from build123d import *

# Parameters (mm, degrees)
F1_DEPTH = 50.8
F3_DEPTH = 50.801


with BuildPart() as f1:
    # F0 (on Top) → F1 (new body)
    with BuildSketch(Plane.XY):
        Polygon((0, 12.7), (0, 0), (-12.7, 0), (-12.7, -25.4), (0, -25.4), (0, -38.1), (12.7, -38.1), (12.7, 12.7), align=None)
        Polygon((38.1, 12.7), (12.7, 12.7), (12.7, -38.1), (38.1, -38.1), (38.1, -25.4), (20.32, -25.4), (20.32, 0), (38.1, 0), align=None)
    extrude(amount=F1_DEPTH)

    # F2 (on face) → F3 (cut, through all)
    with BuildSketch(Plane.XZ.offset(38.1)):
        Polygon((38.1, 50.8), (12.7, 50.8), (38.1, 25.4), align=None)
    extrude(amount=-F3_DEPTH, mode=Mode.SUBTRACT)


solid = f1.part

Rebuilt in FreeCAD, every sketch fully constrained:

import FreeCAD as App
import Part
import Sketcher
Q = App.Units.Quantity


def add_polygon(sketch, points):
    """Adds a closed chain of lines whose ends are joined by coincident constraints."""
    first, n = sketch.GeometryCount, len(points)
    for a, b in zip(points, points[1:] + points[:1]):
        sketch.addGeometry(Part.LineSegment(App.Vector(*a, 0), App.Vector(*b, 0)), False)
    for i in range(n):
        sketch.addConstraint(Sketcher.Constraint("Coincident", first + i, 2, first + (i + 1) % n, 1))

doc = App.newDocument("Part")
body = doc.addObject("PartDesign::Body", "Body")

# Sketch on XY plane
sketch1 = doc.addObject("Sketcher::SketchObject", "Sketch")
body.addObject(sketch1)
sketch1.AttachmentSupport = (doc.XY_Plane, [""])
sketch1.MapMode = "FlatFace"
add_polygon(sketch1, [(0, 13), (0, 0), (-13, 0), (-13, -25), (0, -25), (0, -38), (38, -38), (38, -25), (20, -25), (20, 0), (38, 0), (38, 13)])  # lines 0-11
sketch1.addConstraint(Sketcher.Constraint("Vertical", 0))
sketch1.addConstraint(Sketcher.Constraint("Horizontal", 1))
sketch1.addConstraint(Sketcher.Constraint("Vertical", 2))
sketch1.addConstraint(Sketcher.Constraint("Horizontal", 3))
sketch1.addConstraint(Sketcher.Constraint("Vertical", 4))
sketch1.addConstraint(Sketcher.Constraint("Horizontal", 5))
sketch1.addConstraint(Sketcher.Constraint("Vertical", 6))
sketch1.addConstraint(Sketcher.Constraint("Horizontal", 7))
sketch1.addConstraint(Sketcher.Constraint("Vertical", 8))
sketch1.addConstraint(Sketcher.Constraint("Horizontal", 9))
sketch1.addConstraint(Sketcher.Constraint("Vertical", 10))
sketch1.addConstraint(Sketcher.Constraint("Horizontal", 11))
sketch1.addConstraint(Sketcher.Constraint("Coincident", 0, 2, -1, 1))
sketch1.addConstraint(Sketcher.Constraint("PointOnObject", 3, 2, -2))
sketch1.addConstraint(Sketcher.Constraint("PointOnObject", 8, 2, -1))
sketch1.addConstraint(Sketcher.Constraint("Horizontal", 3, 2, 6, 2))
sketch1.addConstraint(Sketcher.Constraint("Vertical", 6, 2, 9, 2))
sketch1.addConstraint(Sketcher.Constraint("Equal", 3, 0))
sketch1.addConstraint(Sketcher.Constraint("Equal", 0, 4))
sketch1.addConstraint(Sketcher.Constraint("DistanceY", 2, 2, 2, 1, Q("1 in")))
sketch1.addConstraint(Sketcher.Constraint("DistanceX", 1, 2, 1, 1, Q("0.5 in")))
sketch1.addConstraint(Sketcher.Constraint("DistanceX", 5, 1, 5, 2, Q("1.5 in")))
sketch1.addConstraint(Sketcher.Constraint("DistanceX", 7, 2, 7, 1, Q("0.7 in")))
pad1 = doc.addObject("PartDesign::Pad", "Pad")
body.addObject(pad1)
pad1.Profile = sketch1
pad1.Length = Q("2 in")

# Sketch on XZ plane
sketch2 = doc.addObject("Sketcher::SketchObject", "Sketch001")
body.addObject(sketch2)
sketch2.AttachmentSupport = (doc.XZ_Plane, [""])
sketch2.MapMode = "FlatFace"
sketch2.AttachmentOffset = App.Placement(App.Vector(0, 0, 1.5 * 25.4), App.Rotation())
add_polygon(sketch2, [(38, 51), (13, 51), (38, 25)])  # lines 0-2
sketch2.addConstraint(Sketcher.Constraint("Horizontal", 0))
sketch2.addConstraint(Sketcher.Constraint("Vertical", 2))
sketch2.addConstraint(Sketcher.Constraint("Equal", 0, 2))
sketch2.addConstraint(Sketcher.Constraint("DistanceX", 0, 2, 0, 1, Q("1 in")))
sketch2.addConstraint(Sketcher.Constraint("DistanceY", -1, 1, 0, 2, Q("2 in")))
sketch2.addConstraint(Sketcher.Constraint("DistanceX", -1, 1, 0, 2, Q("0.5 in")))
pocket1 = doc.addObject("PartDesign::Pocket", "Pocket")
body.addObject(pocket1)
pocket1.Profile = sketch2
pocket1.Type = "ThroughAll"

doc.recompute()
